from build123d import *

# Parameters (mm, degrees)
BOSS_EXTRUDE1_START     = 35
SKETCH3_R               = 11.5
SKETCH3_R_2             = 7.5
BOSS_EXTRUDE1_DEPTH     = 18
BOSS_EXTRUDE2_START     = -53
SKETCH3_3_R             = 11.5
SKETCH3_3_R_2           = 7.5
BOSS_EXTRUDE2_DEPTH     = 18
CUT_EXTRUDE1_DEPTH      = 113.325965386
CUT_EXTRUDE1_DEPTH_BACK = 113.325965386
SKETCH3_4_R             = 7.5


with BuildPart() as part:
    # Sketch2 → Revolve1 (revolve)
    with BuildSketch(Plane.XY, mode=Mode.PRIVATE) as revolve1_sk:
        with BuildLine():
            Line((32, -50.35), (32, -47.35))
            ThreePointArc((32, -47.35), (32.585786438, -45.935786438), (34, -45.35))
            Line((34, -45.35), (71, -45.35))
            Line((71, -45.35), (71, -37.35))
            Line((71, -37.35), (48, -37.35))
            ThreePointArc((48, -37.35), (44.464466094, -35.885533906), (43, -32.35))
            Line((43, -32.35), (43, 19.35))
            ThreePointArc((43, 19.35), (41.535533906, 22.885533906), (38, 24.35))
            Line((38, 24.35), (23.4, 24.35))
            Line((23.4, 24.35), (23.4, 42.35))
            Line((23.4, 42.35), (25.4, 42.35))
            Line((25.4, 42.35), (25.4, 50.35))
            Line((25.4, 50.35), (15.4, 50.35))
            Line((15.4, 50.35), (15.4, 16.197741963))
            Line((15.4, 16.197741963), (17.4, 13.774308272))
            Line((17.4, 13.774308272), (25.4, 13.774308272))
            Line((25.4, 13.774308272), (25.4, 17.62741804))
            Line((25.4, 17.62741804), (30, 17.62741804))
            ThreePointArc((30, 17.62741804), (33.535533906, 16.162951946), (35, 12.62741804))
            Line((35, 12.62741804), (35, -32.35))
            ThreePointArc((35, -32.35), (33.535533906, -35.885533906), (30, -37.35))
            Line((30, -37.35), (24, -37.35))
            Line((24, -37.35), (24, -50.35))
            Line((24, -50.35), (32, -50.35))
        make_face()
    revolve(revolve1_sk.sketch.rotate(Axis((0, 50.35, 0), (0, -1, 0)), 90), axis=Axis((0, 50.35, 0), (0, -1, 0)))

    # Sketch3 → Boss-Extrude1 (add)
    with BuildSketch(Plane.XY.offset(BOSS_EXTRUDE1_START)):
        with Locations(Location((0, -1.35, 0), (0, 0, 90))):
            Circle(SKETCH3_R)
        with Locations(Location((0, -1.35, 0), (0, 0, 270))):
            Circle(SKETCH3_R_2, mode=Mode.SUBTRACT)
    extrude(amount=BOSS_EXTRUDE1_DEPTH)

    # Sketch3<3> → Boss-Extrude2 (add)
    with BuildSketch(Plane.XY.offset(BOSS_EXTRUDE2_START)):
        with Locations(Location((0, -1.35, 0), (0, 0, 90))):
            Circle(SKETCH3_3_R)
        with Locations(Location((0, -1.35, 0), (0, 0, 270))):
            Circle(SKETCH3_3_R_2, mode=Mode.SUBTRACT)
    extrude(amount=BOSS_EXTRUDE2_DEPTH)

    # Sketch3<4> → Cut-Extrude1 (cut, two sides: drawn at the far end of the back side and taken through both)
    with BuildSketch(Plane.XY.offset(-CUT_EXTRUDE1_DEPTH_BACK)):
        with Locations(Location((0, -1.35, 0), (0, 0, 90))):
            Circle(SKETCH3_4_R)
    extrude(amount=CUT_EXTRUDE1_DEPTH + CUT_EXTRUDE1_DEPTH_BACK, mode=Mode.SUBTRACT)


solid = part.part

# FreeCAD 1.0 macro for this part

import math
import FreeCAD as App
import Part
import Sketcher

V = App.Vector
Q = App.Units.Quantity

doc = App.newDocument("Part")
params = doc.addObject("Spreadsheet::Sheet", "Params")
for row, (alias, value) in enumerate([
    ("sketch1_radius", "2 mm"),
    ("sketch1_radius2", "5 mm"),
    ("sketch1_width", "37 mm"),
    ("sketch1_width2", "23 mm"),
    ("sketch1_width3", "2 mm"),
    ("revolution_angle", "360 deg"),
    ("sketch2_diameter", "23 mm"),
    ("sketch2_diameter2", "15 mm"),
    ("pad1_length", "18 mm"),
    ("sketch3_diameter", "23 mm"),
    ("sketch3_diameter2", "15 mm"),
    ("pad2_length", "18 mm"),
    ("sketch4_diameter", "15 mm"),
], start=1):
    params.set(f"A{row}", alias)
    params.set(f"B{row}", "=" + value)
    params.setAlias(f"B{row}", alias)

body = doc.addObject("PartDesign::Body", "Body")

sketch1 = body.newObject("Sketcher::SketchObject", "Sketch")
sketch1.AttachmentSupport = (doc.getObject("XY_Plane"), [""])
sketch1.MapMode = "FlatFace"
sketch1.addGeometry([
    Part.LineSegment(V(32, -50.4, 0), V(32, -47.4, 0)),
    Part.ArcOfCircle(Part.Circle(V(34, -47.4, 0), V(0, 0, 1), 2), math.radians(90), math.radians(180)),
    Part.LineSegment(V(34, -45.4, 0), V(71, -45.4, 0)),
    Part.LineSegment(V(71, -45.4, 0), V(71, -37.4, 0)),
    Part.LineSegment(V(71, -37.4, 0), V(48, -37.4, 0)),
    Part.ArcOfCircle(Part.Circle(V(48, -32.4, 0), V(0, 0, 1), 5), math.radians(180), math.radians(270)),
    Part.LineSegment(V(43, -32.4, 0), V(43, 19.4, 0)),
    Part.ArcOfCircle(Part.Circle(V(38, 19.4, 0), V(0, 0, 1), 5), math.radians(0), math.radians(90)),
    Part.LineSegment(V(38, 24.4, 0), V(23.4, 24.4, 0)),
    Part.LineSegment(V(23.4, 24.4, 0), V(23.4, 42.4, 0)),
    Part.LineSegment(V(23.4, 42.4, 0), V(25.4, 42.4, 0)),
    Part.LineSegment(V(25.4, 42.4, 0), V(25.4, 50.4, 0)),
    Part.LineSegment(V(25.4, 50.4, 0), V(15.4, 50.4, 0)),
    Part.LineSegment(V(15.4, 50.4, 0), V(15.4, 16.2, 0)),
    Part.LineSegment(V(15.4, 16.2, 0), V(17.4, 13.8, 0)),
    Part.LineSegment(V(17.4, 13.8, 0), V(25.4, 13.8, 0)),
    Part.LineSegment(V(25.4, 13.8, 0), V(25.4, 17.6, 0)),
    Part.LineSegment(V(25.4, 17.6, 0), V(30, 17.6, 0)),
    Part.ArcOfCircle(Part.Circle(V(30, 12.6, 0), V(0, 0, 1), 5), math.radians(0), math.radians(90)),
    Part.LineSegment(V(35, 12.6, 0), V(35, -32.4, 0)),
    Part.ArcOfCircle(Part.Circle(V(30, -32.4, 0), V(0, 0, 1), 5), math.radians(-90), math.radians(0)),
    Part.LineSegment(V(30, -37.4, 0), V(24, -37.4, 0)),
    Part.LineSegment(V(24, -37.4, 0), V(24, -50.4, 0)),
    Part.LineSegment(V(24, -50.4, 0), V(32, -50.4, 0)),
], False)
sketch1.addConstraint([
    Sketcher.Constraint("Tangent", 0, 2, 1, 2),
    Sketcher.Constraint("Tangent", 1, 1, 2, 1),
    Sketcher.Constraint("Coincident", 2, 2, 3, 1),
    Sketcher.Constraint("Coincident", 3, 2, 4, 1),
    Sketcher.Constraint("Tangent", 4, 2, 5, 2),
    Sketcher.Constraint("Tangent", 5, 1, 6, 1),
    Sketcher.Constraint("Tangent", 6, 2, 7, 1),
    Sketcher.Constraint("Tangent", 7, 2, 8, 1),
    Sketcher.Constraint("Coincident", 8, 2, 9, 1),
    Sketcher.Constraint("Coincident", 9, 2, 10, 1),
    Sketcher.Constraint("Coincident", 10, 2, 11, 1),
    Sketcher.Constraint("Coincident", 11, 2, 12, 1),
    Sketcher.Constraint("Coincident", 12, 2, 13, 1),
    Sketcher.Constraint("Coincident", 13, 2, 14, 1),
    Sketcher.Constraint("Coincident", 14, 2, 15, 1),
    Sketcher.Constraint("Coincident", 15, 2, 16, 1),
    Sketcher.Constraint("Coincident", 16, 2, 17, 1),
    Sketcher.Constraint("Tangent", 17, 2, 18, 2),
    Sketcher.Constraint("Tangent", 18, 1, 19, 1),
    Sketcher.Constraint("Tangent", 19, 2, 20, 2),
    Sketcher.Constraint("Tangent", 20, 1, 21, 1),
    Sketcher.Constraint("Coincident", 21, 2, 22, 1),
    Sketcher.Constraint("Coincident", 22, 2, 23, 1),
    Sketcher.Constraint("Coincident", 23, 2, 0, 1),
    Sketcher.Constraint("Vertical", 0),
    Sketcher.Constraint("Horizontal", 2),
    Sketcher.Constraint("Vertical", 3),
    Sketcher.Constraint("Horizontal", 4),
    Sketcher.Constraint("Vertical", 6),
    Sketcher.Constraint("Horizontal", 8),
    Sketcher.Constraint("Vertical", 9),
    Sketcher.Constraint("Horizontal", 10),
    Sketcher.Constraint("Vertical", 11),
    Sketcher.Constraint("Horizontal", 12),
    Sketcher.Constraint("Vertical", 13),
    Sketcher.Constraint("Horizontal", 15),
    Sketcher.Constraint("Vertical", 16),
    Sketcher.Constraint("Horizontal", 17),
    Sketcher.Constraint("Vertical", 19),
    Sketcher.Constraint("Horizontal", 21),
    Sketcher.Constraint("Vertical", 22),
    Sketcher.Constraint("Horizontal", 23),
    Sketcher.Constraint("Equal", 5, 7),
    Sketcher.Constraint("Equal", 7, 18),
    Sketcher.Constraint("Equal", 18, 20),
    Sketcher.Constraint("Horizontal", 5, 3, 20, 3),
    Sketcher.Constraint("Vertical", 11, 2, 15, 2),
    Sketcher.Constraint("Equal", 15, 23),
    Sketcher.Constraint("Equal", 23, 3),
    Sketcher.Constraint("Equal", 3, 11),
    Sketcher.Constraint("Radius", 1, Q("2 mm")),
    Sketcher.Constraint("Radius", 5, Q("5 mm")),
    Sketcher.Constraint("DistanceX", 2, 1, 2, 2, Q("37 mm")),
    Sketcher.Constraint("DistanceX", 4, 2, 4, 1, Q("23 mm")),
    Sketcher.Constraint("DistanceX", 10, 1, 10, 2, Q("2 mm")),
    Sketcher.Constraint("DistanceX", 12, 2, 12, 1, Q("10 mm")),
    Sketcher.Constraint("DistanceX", 15, 1, 15, 2, Q("8 mm")),
    Sketcher.Constraint("DistanceX", 21, 2, 21, 1, Q("6 mm")),
    Sketcher.Constraint("DistanceY", 0, 1, 0, 2, Q("3 mm")),
    Sketcher.Constraint("DistanceY", 9, 1, 9, 2, Q("18 mm")),
    Sketcher.Constraint("DistanceX", 8, 2, 8, 1, Q("14.6 mm")),
    Sketcher.Constraint("DistanceY", 6, 1, 6, 2, Q("51.7 mm")),
    Sketcher.Constraint("DistanceX", -1, 1, 1, 3, Q("34 mm")),
    Sketcher.Constraint("DistanceY", 1, 3, -1, 1, Q("47.35 mm")),
    Sketcher.Constraint("DistanceY", 13, 2, 13, 1, Q("34.152258 mm")),
    Sketcher.Constraint("DistanceY", 16, 1, 16, 2, Q("3.85311 mm")),
    Sketcher.Constraint("DistanceY", 19, 2, 19, 1, Q("44.977418 mm")),
])
sketch1.setExpression("Constraints[50]", "Params.sketch1_radius")
sketch1.setExpression("Constraints[51]", "Params.sketch1_radius2")
sketch1.setExpression("Constraints[52]", "Params.sketch1_width")
sketch1.setExpression("Constraints[53]", "Params.sketch1_width2")
sketch1.setExpression("Constraints[54]", "Params.sketch1_width3")
revolution = body.newObject("PartDesign::Revolution", "Revolution")
revolution.Profile = sketch1
revolution.ReferenceAxis = (sketch1, ["V_Axis"])
revolution.setExpression("Angle", "Params.revolution_angle")

sketch2 = body.newObject("Sketcher::SketchObject", "Sketch001")
sketch2.AttachmentSupport = (doc.getObject("XY_Plane"), [""])
sketch2.MapMode = "FlatFace"
sketch2.AttachmentOffset = App.Placement(V(0, 0, 35), App.Rotation())
sketch2.addGeometry([
    Part.Circle(V(0, -1, 0), V(0, 0, 1), 12),
    Part.Circle(V(0, -1, 0), V(0, 0, 1), 8),
], False)
sketch2.addConstraint([
    Sketcher.Constraint("Coincident", 1, 3, 0, 3),
    Sketcher.Constraint("PointOnObject", 0, 3, -2),
    Sketcher.Constraint("Diameter", 0, Q("23 mm")),
    Sketcher.Constraint("Diameter", 1, Q("15 mm")),
    Sketcher.Constraint("DistanceY", 0, 3, -1, 1, Q("1.35 mm")),
])
sketch2.setExpression("Constraints[2]", "Params.sketch2_diameter")
sketch2.setExpression("Constraints[3]", "Params.sketch2_diameter2")
pad1 = body.newObject("PartDesign::Pad", "Pad")
pad1.Profile = sketch2
pad1.setExpression("Length", "Params.pad1_length")

sketch3 = body.newObject("Sketcher::SketchObject", "Sketch002")
sketch3.AttachmentSupport = (doc.getObject("XY_Plane"), [""])
sketch3.MapMode = "FlatFace"
sketch3.AttachmentOffset = App.Placement(V(0, 0, -53), App.Rotation())
sketch3.addGeometry([
    Part.Circle(V(0, -1, 0), V(0, 0, 1), 12),
    Part.Circle(V(0, -1, 0), V(0, 0, 1), 8),
], False)
sketch3.addConstraint([
    Sketcher.Constraint("Coincident", 1, 3, 0, 3),
    Sketcher.Constraint("PointOnObject", 0, 3, -2),
    Sketcher.Constraint("Diameter", 0, Q("23 mm")),
    Sketcher.Constraint("Diameter", 1, Q("15 mm")),
    Sketcher.Constraint("DistanceY", 0, 3, -1, 1, Q("1.35 mm")),
])
sketch3.setExpression("Constraints[2]", "Params.sketch3_diameter")
sketch3.setExpression("Constraints[3]", "Params.sketch3_diameter2")
pad2 = body.newObject("PartDesign::Pad", "Pad001")
pad2.Profile = sketch3
pad2.setExpression("Length", "Params.pad2_length")

sketch4 = body.newObject("Sketcher::SketchObject", "Sketch003")
sketch4.AttachmentSupport = (doc.getObject("XY_Plane"), [""])
sketch4.MapMode = "FlatFace"
sketch4.addGeometry(Part.Circle(V(0, -1, 0), V(0, 0, 1), 8), False)
sketch4.addConstraint([
    Sketcher.Constraint("PointOnObject", 0, 3, -2),
    Sketcher.Constraint("Diameter", 0, Q("15 mm")),
    Sketcher.Constraint("DistanceY", 0, 3, -1, 1, Q("1.35 mm")),
])
sketch4.setExpression("Constraints[1]", "Params.sketch4_diameter")
pocket1 = body.newObject("PartDesign::Pocket", "Pocket")
pocket1.Profile = sketch4
pocket1.Type = "ThroughAll"
pocket1.Midplane = True

doc.recompute()
